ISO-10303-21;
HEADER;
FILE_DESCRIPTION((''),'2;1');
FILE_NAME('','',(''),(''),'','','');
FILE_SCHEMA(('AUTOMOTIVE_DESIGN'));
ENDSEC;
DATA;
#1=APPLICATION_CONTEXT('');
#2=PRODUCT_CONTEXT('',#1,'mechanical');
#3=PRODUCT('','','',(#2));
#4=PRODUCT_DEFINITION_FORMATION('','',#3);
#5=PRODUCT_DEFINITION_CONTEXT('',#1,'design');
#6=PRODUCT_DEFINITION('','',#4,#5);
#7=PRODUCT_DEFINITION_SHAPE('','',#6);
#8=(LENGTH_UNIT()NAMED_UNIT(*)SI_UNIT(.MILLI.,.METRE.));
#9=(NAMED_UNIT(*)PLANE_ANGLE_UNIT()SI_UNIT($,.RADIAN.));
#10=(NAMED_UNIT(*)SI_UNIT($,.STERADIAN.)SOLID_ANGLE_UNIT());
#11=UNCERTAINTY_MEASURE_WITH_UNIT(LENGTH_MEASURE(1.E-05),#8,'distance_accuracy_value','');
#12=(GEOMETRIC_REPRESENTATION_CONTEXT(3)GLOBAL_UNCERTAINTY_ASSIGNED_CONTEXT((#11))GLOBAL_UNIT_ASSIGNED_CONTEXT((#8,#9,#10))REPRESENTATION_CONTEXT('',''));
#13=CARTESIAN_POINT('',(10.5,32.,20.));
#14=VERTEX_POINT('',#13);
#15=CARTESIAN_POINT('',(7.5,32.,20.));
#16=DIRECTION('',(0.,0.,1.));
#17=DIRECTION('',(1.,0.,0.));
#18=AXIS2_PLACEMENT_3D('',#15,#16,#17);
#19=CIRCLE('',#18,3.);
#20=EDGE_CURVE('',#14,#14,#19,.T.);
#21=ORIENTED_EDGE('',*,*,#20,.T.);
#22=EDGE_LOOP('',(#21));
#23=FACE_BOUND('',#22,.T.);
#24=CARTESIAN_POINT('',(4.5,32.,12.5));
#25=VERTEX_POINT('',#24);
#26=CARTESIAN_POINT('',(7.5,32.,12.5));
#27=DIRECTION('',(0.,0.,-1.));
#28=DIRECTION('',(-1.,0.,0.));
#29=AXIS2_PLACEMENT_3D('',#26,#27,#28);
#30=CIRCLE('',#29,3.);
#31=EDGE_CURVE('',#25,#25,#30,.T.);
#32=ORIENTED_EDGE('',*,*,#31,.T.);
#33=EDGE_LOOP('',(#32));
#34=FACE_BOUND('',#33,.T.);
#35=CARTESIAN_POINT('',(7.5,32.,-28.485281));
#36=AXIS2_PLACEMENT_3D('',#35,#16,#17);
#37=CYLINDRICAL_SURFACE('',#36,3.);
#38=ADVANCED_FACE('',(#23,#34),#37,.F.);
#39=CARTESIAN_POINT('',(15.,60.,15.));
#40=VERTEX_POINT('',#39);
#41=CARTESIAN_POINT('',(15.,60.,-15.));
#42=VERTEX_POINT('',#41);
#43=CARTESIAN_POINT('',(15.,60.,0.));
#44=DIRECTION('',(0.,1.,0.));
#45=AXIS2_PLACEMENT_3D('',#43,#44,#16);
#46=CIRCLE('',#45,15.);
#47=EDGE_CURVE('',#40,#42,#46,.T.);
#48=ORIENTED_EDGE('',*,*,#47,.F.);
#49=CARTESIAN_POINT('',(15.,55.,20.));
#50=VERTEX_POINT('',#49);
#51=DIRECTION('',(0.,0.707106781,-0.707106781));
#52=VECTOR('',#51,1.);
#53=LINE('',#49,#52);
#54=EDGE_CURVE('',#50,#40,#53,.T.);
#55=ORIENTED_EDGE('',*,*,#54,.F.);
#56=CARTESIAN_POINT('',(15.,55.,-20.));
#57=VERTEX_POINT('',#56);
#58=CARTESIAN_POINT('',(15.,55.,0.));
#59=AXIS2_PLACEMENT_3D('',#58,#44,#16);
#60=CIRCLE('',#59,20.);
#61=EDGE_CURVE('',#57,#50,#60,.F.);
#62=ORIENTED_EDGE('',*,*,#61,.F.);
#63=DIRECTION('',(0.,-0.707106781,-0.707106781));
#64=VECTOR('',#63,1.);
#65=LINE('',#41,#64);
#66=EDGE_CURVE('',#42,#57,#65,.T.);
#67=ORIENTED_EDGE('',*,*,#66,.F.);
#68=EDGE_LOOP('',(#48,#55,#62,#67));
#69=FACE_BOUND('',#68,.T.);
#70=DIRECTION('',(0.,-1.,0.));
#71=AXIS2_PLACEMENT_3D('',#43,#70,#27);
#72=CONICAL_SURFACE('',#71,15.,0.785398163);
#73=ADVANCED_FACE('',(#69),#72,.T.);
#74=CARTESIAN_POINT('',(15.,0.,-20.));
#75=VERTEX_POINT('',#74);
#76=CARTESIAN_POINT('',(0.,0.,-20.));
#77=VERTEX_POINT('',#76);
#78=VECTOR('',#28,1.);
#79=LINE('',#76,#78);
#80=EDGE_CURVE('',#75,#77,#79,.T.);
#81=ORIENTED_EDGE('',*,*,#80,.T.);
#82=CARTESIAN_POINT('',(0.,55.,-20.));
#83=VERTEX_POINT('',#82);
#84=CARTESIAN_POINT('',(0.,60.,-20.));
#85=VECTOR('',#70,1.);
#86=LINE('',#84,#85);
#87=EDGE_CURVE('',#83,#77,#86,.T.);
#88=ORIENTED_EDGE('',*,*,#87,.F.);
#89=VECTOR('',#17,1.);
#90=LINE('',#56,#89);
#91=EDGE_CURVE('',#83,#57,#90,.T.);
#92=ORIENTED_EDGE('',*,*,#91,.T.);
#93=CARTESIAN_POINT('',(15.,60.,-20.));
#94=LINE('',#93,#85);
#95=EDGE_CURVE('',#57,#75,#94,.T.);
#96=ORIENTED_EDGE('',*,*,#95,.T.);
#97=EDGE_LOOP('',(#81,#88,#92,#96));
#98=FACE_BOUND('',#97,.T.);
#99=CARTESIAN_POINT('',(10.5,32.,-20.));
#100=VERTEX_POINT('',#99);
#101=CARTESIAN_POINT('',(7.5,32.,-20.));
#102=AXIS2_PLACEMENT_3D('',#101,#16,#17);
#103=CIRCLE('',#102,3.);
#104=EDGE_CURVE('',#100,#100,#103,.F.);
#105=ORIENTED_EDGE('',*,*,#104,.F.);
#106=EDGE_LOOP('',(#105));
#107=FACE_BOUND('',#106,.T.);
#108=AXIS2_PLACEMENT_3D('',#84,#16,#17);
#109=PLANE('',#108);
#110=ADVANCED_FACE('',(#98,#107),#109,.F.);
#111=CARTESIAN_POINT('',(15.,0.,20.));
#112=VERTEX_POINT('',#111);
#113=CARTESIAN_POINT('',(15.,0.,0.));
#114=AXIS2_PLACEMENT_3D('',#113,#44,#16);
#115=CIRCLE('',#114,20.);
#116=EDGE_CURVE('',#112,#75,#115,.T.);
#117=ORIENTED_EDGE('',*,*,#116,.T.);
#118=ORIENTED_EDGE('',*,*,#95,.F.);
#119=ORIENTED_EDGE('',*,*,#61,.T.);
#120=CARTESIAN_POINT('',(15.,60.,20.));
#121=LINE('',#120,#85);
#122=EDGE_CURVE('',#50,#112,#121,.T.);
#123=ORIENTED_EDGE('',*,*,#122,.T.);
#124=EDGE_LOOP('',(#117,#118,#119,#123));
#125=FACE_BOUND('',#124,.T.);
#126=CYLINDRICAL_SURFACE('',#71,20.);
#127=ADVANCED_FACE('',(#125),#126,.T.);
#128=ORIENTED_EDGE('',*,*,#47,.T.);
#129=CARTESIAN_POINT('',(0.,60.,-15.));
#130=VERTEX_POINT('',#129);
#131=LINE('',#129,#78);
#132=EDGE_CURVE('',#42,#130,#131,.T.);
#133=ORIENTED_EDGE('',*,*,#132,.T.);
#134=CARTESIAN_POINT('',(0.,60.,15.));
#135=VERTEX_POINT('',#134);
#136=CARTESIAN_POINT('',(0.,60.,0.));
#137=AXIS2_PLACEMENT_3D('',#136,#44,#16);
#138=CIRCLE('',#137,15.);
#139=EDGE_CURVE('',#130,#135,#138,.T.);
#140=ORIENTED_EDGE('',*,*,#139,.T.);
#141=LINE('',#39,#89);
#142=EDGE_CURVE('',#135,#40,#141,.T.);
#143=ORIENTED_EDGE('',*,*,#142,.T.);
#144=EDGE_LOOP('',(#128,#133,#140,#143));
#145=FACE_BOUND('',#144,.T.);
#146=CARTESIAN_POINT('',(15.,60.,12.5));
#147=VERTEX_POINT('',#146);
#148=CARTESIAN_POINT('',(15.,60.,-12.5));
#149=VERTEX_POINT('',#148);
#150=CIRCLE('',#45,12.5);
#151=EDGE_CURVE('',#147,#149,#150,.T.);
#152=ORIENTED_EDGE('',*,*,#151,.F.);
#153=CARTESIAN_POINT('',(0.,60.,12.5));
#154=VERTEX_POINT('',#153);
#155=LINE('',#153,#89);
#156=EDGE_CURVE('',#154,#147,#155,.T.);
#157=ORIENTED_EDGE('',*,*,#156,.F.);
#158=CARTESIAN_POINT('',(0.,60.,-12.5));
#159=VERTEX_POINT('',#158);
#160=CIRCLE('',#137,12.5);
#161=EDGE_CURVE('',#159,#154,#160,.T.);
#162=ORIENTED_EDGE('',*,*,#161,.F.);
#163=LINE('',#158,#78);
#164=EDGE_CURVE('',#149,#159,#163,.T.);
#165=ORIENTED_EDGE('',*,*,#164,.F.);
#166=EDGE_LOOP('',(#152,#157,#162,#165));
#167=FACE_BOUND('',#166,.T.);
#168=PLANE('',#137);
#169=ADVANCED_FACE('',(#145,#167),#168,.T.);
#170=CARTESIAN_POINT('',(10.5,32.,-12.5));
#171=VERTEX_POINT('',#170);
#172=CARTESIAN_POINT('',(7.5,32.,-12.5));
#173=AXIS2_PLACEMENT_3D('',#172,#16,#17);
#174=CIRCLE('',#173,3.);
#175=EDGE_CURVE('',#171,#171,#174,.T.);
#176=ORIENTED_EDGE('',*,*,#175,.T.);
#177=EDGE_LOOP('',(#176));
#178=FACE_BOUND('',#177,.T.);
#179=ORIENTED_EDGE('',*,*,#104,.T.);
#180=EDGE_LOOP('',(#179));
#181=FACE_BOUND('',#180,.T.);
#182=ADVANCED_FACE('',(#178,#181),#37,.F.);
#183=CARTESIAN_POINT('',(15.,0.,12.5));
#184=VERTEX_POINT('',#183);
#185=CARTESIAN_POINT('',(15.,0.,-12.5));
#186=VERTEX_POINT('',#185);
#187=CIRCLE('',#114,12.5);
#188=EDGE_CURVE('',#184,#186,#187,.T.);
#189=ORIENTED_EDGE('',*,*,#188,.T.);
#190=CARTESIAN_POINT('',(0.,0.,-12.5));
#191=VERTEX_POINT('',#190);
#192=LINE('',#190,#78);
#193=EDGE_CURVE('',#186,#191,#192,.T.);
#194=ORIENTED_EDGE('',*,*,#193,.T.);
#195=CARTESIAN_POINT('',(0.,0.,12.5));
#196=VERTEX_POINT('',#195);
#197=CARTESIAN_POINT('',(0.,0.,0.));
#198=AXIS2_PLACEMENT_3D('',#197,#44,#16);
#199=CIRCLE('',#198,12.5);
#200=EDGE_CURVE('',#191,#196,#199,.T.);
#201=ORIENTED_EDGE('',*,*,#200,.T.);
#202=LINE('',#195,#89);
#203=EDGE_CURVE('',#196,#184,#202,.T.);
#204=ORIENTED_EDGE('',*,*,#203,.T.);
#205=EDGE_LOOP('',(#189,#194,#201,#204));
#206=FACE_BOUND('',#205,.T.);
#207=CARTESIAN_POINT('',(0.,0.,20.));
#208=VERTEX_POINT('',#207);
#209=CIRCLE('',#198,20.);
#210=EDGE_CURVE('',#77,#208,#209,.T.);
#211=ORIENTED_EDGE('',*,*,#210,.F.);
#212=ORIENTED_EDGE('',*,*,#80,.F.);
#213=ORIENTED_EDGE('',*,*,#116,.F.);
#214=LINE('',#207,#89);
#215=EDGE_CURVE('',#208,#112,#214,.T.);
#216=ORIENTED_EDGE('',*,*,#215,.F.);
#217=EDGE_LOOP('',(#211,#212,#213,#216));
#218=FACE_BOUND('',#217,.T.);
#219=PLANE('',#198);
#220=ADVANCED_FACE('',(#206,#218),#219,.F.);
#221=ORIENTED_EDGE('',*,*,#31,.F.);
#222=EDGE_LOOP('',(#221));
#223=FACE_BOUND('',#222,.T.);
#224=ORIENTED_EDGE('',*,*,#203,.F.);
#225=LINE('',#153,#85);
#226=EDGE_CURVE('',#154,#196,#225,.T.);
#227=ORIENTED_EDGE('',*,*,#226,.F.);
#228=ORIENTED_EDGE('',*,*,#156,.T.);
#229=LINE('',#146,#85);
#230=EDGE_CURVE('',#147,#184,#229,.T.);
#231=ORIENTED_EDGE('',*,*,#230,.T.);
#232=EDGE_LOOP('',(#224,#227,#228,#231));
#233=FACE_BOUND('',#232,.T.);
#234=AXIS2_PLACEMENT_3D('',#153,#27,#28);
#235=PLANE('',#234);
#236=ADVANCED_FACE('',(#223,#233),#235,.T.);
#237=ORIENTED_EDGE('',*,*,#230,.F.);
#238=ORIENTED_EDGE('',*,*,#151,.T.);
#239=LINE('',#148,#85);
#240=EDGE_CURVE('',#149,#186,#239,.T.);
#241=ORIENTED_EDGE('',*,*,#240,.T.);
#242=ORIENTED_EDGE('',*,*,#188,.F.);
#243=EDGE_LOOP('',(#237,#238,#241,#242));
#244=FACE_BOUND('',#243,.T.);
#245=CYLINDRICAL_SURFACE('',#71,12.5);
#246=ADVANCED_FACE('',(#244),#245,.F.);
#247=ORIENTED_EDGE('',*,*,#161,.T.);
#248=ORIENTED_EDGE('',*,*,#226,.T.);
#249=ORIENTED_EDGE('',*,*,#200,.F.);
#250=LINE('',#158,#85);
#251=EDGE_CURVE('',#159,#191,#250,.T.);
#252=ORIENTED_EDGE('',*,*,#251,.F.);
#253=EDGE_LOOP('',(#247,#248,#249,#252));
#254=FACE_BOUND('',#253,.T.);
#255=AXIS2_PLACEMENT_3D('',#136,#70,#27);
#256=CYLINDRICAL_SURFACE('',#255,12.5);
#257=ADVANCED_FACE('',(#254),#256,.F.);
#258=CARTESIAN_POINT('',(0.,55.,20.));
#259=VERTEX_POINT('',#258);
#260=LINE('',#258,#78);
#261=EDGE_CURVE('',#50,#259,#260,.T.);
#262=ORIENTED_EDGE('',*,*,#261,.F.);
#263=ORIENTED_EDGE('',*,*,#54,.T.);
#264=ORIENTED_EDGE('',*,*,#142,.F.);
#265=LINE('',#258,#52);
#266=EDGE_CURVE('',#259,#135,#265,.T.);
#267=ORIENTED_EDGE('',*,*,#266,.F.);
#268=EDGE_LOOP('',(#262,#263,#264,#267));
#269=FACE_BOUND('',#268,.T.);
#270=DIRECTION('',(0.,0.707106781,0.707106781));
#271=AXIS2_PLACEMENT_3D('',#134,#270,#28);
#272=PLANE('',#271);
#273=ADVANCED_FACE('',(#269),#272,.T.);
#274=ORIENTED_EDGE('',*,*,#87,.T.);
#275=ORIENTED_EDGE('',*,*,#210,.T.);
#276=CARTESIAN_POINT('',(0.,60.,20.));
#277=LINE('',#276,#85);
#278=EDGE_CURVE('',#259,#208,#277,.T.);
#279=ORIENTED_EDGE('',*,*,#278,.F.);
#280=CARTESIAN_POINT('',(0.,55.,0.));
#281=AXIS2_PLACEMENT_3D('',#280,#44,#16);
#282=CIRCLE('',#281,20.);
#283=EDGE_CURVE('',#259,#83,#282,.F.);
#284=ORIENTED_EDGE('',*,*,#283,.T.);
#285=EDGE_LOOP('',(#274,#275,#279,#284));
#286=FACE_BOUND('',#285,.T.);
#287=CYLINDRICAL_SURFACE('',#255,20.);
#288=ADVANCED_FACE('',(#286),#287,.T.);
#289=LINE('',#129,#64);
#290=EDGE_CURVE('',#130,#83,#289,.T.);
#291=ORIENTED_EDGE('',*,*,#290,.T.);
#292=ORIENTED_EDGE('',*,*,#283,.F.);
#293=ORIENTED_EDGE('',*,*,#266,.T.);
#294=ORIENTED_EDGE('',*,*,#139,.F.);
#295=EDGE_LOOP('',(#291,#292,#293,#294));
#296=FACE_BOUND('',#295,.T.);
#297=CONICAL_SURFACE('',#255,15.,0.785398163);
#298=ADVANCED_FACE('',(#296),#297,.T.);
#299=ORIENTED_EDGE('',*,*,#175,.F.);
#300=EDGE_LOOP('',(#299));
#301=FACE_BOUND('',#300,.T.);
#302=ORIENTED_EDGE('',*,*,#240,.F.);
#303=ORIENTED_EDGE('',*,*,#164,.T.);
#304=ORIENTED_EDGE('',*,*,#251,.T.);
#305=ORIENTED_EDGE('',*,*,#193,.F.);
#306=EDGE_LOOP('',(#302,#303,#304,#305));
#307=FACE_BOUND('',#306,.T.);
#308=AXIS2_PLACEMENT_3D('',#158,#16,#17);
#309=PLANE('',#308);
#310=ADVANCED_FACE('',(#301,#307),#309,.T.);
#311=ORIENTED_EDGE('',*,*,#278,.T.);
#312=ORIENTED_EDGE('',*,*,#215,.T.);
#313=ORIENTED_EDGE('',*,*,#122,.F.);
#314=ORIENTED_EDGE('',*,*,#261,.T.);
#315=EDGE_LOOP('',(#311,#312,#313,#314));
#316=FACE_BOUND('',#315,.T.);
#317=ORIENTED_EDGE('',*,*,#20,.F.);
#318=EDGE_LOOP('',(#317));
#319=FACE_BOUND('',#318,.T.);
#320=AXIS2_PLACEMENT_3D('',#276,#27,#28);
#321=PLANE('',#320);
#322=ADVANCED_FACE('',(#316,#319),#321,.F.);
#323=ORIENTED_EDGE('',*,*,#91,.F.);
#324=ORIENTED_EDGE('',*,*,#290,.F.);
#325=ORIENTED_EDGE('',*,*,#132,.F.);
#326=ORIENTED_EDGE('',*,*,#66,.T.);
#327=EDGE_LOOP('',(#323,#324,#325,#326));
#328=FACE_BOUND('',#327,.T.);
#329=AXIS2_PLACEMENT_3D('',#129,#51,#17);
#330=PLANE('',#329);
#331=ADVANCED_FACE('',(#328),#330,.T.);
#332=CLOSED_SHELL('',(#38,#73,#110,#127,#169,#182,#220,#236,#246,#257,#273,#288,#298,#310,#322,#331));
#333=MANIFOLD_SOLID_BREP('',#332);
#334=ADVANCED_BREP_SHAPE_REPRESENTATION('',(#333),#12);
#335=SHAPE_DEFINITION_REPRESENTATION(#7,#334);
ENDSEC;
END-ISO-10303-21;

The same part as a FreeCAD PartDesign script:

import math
import FreeCAD as App
import Part
import Sketcher
from FreeCAD import Vector


def edges_at(feature, points):
    """Names of the edges that pass closest to the given points."""
    edges = feature.Shape.Edges
    near = lambda p: min(range(len(edges)), key=lambda i: edges[i].distToShape(Part.Vertex(*p))[0])
    return sorted({f"Edge{near(p) + 1}" for p in points})

doc = App.newDocument("Part")
body = doc.addObject("PartDesign::Body", "Body")

# Sketch on XZ plane
sketch1 = body.newObject("Sketcher::SketchObject", "Sketch")
sketch1.AttachmentSupport = (doc.getObject("XZ_Plane"), [""])
sketch1.MapMode = "FlatFace"
sketch1.addGeometry([
    Part.LineSegment(Vector(15, -20, 0), Vector(0, -20, 0)),  # 0
    Part.ArcOfCircle(Part.Circle(Vector(0, 0, 0), Vector(0, 0, 1), 20), math.radians(90), math.radians(270)),  # 1
    Part.LineSegment(Vector(0, 20, 0), Vector(15, 20, 0)),  # 2
    Part.ArcOfCircle(Part.Circle(Vector(15, 0, 0), Vector(0, 0, 1), 20), math.radians(-90), math.radians(90)),  # 3
    Part.LineSegment(Vector(0, -12, 0), Vector(15, -12, 0)),  # 4
    Part.ArcOfCircle(Part.Circle(Vector(15, 0, 0), Vector(0, 0, 1), 12), math.radians(-90), math.radians(90)),  # 5
    Part.LineSegment(Vector(15, 12, 0), Vector(0, 12, 0)),  # 6
    Part.ArcOfCircle(Part.Circle(Vector(0, 0, 0), Vector(0, 0, 1), 12), math.radians(90), math.radians(270)),  # 7
], False)
sketch1.addConstraint([
    Sketcher.Constraint("Tangent", 0, 2, 1, 2),
    Sketcher.Constraint("Tangent", 1, 1, 2, 1),
    Sketcher.Constraint("Tangent", 2, 2, 3, 2),
    Sketcher.Constraint("Tangent", 3, 1, 0, 1),
    Sketcher.Constraint("Tangent", 4, 2, 5, 1),
    Sketcher.Constraint("Tangent", 5, 2, 6, 1),
    Sketcher.Constraint("Tangent", 6, 2, 7, 1),
    Sketcher.Constraint("Tangent", 7, 2, 4, 1),
    Sketcher.Constraint("Horizontal", 0),
    Sketcher.Constraint("Horizontal", 2),
    Sketcher.Constraint("Horizontal", 4),
    Sketcher.Constraint("Horizontal", 6),
    Sketcher.Constraint("Coincident", 1, 3, -1, 1),
    Sketcher.Constraint("Coincident", 7, 3, -1, 1),
    Sketcher.Constraint("Vertical", 5, 3, 2, 2),
    Sketcher.Constraint("Radius", 1, 20.0),
    Sketcher.Constraint("Radius", 5, 12.5),
    Sketcher.Constraint("DistanceX", 0, 2, 0, 1, 15.0),
])
pad1 = body.newObject("PartDesign::Pad", "Pad")
pad1.Profile = sketch1
pad1.Length = 60
pad1.Reversed = True
doc.recompute()

chamfer = body.newObject("PartDesign::Chamfer", "Chamfer")
chamfer.Base = (pad1, edges_at(pad1, [
    (35, 60, 0),
    (7.5, 60, -20),
    (-20, 60, 0),
    (7.5, 60, 20),
]))
chamfer.Size = 5

# Sketch on XY plane
sketch2 = body.newObject("Sketcher::SketchObject", "Sketch001")
sketch2.AttachmentSupport = (doc.getObject("XY_Plane"), [""])
sketch2.MapMode = "FlatFace"
sketch2.AttachmentOffset = App.Placement(Vector(0, 0, 20), App.Rotation())
sketch2.addGeometry(Part.Circle(Vector(7.5, 32, 0), Vector(0, 0, 1), 3), False)
sketch2.addConstraint([
    Sketcher.Constraint("Diameter", 0, 6.0),
    Sketcher.Constraint("DistanceY", -1, 1, 0, 3, 32.0),
    Sketcher.Constraint("DistanceX", -1, 1, 0, 3, 7.5),
])
pocket1 = body.newObject("PartDesign::Pocket", "Pocket")
pocket1.Profile = sketch2
pocket1.Length = 40

doc.recompute()
